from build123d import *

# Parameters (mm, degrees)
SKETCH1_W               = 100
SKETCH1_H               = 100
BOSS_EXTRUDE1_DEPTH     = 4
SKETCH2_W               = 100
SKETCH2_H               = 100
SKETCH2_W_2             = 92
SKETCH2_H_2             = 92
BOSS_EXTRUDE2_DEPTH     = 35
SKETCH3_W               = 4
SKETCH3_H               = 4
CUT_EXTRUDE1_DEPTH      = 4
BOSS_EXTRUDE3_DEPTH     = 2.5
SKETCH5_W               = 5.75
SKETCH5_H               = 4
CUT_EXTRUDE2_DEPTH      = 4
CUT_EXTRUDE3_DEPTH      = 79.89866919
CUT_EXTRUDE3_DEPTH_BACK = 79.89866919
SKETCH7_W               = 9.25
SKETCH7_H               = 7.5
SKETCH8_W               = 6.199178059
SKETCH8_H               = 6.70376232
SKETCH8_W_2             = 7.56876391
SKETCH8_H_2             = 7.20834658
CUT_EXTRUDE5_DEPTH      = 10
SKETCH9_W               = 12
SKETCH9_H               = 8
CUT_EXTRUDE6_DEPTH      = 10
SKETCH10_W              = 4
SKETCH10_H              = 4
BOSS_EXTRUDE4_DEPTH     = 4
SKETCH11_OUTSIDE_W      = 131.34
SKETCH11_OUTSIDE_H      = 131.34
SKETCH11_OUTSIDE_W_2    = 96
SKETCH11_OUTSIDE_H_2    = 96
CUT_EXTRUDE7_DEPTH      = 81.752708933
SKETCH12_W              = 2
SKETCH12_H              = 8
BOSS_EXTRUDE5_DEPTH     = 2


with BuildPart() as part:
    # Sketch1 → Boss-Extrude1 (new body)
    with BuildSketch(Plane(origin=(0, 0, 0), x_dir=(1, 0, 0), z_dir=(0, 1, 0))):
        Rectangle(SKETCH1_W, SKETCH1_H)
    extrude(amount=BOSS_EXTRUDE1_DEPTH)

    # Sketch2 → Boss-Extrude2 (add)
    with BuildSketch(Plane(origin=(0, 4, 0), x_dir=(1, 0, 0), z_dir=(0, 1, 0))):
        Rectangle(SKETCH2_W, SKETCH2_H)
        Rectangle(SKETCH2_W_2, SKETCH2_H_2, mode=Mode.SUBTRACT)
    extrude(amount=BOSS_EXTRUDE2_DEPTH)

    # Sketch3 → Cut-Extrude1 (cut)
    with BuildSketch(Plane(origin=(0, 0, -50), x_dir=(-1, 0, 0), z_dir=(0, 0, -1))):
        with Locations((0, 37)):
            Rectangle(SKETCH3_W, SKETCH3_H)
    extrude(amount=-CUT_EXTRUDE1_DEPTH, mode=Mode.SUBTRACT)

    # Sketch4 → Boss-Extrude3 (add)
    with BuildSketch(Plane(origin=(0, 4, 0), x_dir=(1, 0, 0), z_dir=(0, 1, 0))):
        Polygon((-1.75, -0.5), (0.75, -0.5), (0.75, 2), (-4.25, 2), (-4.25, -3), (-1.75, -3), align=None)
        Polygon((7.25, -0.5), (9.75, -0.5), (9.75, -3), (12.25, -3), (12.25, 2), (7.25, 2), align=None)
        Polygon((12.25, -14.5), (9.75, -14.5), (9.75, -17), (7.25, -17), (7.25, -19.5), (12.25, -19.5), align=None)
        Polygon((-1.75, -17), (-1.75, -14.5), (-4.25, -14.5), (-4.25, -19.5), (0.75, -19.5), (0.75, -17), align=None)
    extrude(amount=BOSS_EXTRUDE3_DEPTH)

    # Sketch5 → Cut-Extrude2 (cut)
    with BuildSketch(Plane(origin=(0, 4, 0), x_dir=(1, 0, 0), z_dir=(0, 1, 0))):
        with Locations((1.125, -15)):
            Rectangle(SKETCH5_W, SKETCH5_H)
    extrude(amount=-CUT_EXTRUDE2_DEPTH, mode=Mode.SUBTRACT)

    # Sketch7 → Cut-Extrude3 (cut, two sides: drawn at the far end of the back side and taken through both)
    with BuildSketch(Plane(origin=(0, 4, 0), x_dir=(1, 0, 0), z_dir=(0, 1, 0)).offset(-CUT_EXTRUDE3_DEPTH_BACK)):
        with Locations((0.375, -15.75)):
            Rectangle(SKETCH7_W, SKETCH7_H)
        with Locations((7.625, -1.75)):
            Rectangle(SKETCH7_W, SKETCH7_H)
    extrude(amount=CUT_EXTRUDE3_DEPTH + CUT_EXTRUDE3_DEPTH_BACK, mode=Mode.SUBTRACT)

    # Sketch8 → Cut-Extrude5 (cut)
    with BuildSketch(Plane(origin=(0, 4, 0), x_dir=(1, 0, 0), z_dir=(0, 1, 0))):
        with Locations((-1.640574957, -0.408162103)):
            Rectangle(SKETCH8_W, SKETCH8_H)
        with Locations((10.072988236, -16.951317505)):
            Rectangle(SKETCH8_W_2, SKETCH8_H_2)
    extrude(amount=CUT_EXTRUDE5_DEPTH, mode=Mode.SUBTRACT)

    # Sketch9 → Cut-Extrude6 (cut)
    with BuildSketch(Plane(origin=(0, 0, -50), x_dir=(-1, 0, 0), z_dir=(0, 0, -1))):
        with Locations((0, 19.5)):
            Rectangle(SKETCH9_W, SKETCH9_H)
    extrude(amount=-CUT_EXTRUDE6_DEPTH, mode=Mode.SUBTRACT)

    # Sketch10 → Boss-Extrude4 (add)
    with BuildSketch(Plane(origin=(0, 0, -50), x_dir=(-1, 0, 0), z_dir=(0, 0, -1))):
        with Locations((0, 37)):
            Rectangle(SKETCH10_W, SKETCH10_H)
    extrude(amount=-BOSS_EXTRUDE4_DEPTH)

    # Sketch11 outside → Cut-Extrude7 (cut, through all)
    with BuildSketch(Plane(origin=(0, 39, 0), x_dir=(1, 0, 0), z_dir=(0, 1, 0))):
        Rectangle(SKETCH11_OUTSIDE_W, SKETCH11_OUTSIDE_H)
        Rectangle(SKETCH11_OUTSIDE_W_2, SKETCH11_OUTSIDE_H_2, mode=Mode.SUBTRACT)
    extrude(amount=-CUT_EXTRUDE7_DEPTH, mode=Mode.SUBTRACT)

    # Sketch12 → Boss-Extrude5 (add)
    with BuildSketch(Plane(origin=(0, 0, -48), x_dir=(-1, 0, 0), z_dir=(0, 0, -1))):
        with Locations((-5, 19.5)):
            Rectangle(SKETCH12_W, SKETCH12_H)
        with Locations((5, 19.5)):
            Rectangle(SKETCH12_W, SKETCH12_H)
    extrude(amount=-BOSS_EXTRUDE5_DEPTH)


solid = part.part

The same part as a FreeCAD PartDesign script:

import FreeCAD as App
import Part
import Sketcher

V = App.Vector
Q = App.Units.Quantity


def add_polygon(sketch, points):
    """Adds a closed chain of lines whose ends are joined by coincident constraints."""
    first, n = sketch.GeometryCount, len(points)
    for a, b in zip(points, points[1:] + points[:1]):
        sketch.addGeometry(Part.LineSegment(App.Vector(*a, 0), App.Vector(*b, 0)), False)
    for i in range(n):
        sketch.addConstraint(Sketcher.Constraint("Coincident", first + i, 2, first + (i + 1) % n, 1))

doc = App.newDocument("Part")
body = doc.addObject("PartDesign::Body", "Body")

# Sketch on XZ plane
sketch1 = body.newObject("Sketcher::SketchObject", "Sketch")
sketch1.AttachmentSupport = (doc.getObject("XZ_Plane"), [""])
sketch1.MapMode = "FlatFace"
add_polygon(sketch1, [(-50, -50), (-50, 50), (50, 50), (50, -50)])  # lines 0-3
sketch1.addConstraint(Sketcher.Constraint("Vertical", 0))
sketch1.addConstraint(Sketcher.Constraint("Horizontal", 1))
sketch1.addConstraint(Sketcher.Constraint("Vertical", 2))
sketch1.addConstraint(Sketcher.Constraint("Horizontal", 3))
sketch1.addConstraint(Sketcher.Constraint("Symmetric", 0, 2, 2, 2, -1, 1))
sketch1.addConstraint(Sketcher.Constraint("Equal", 3, 0))
sketch1.addConstraint(Sketcher.Constraint("DistanceX", 1, 1, 1, 2, Q("100 mm")))
pad1 = body.newObject("PartDesign::Pad", "Pad")
pad1.Profile = sketch1
pad1.Length = 4
pad1.Reversed = True

# Sketch on XZ plane
sketch2 = body.newObject("Sketcher::SketchObject", "Sketch001")
sketch2.AttachmentSupport = (doc.getObject("XZ_Plane"), [""])
sketch2.MapMode = "FlatFace"
sketch2.AttachmentOffset = App.Placement(V(0, 0, -4), App.Rotation())
add_polygon(sketch2, [(-50, -50), (-50, 50), (50, 50), (50, -50)])  # lines 0-3
add_polygon(sketch2, [(46, 46), (-46, 46), (-46, -46), (46, -46)])  # lines 4-7
sketch2.addConstraint(Sketcher.Constraint("Vertical", 0))
sketch2.addConstraint(Sketcher.Constraint("Horizontal", 1))
sketch2.addConstraint(Sketcher.Constraint("Vertical", 2))
sketch2.addConstraint(Sketcher.Constraint("Horizontal", 3))
sketch2.addConstraint(Sketcher.Constraint("Horizontal", 4))
sketch2.addConstraint(Sketcher.Constraint("Vertical", 5))
sketch2.addConstraint(Sketcher.Constraint("Horizontal", 6))
sketch2.addConstraint(Sketcher.Constraint("Vertical", 7))
sketch2.addConstraint(Sketcher.Constraint("Symmetric", 0, 2, 2, 2, -1, 1))
sketch2.addConstraint(Sketcher.Constraint("Symmetric", 4, 2, 6, 2, -1, 1))
sketch2.addConstraint(Sketcher.Constraint("Equal", 3, 0))
sketch2.addConstraint(Sketcher.Constraint("Equal", 6, 5))
sketch2.addConstraint(Sketcher.Constraint("DistanceX", 1, 1, 1, 2, Q("100 mm")))
sketch2.addConstraint(Sketcher.Constraint("DistanceX", 4, 2, 4, 1, Q("92 mm")))
pad2 = body.newObject("PartDesign::Pad", "Pad001")
pad2.Profile = sketch2
pad2.Length = 35
pad2.Reversed = True

# Sketch on XY plane
sketch3 = body.newObject("Sketcher::SketchObject", "Sketch002")
sketch3.AttachmentSupport = (doc.getObject("XY_Plane"), [""])
sketch3.MapMode = "FlatFace"
sketch3.AttachmentOffset = App.Placement(V(0, 0, -50), App.Rotation())
add_polygon(sketch3, [(2, 39), (2, 35), (-2, 35), (-2, 39)])  # lines 0-3
sketch3.addConstraint(Sketcher.Constraint("Vertical", 0))
sketch3.addConstraint(Sketcher.Constraint("Horizontal", 1))
sketch3.addConstraint(Sketcher.Constraint("Vertical", 2))
sketch3.addConstraint(Sketcher.Constraint("Horizontal", 3))
sketch3.addConstraint(Sketcher.Constraint("Equal", 3, 0))
sketch3.addConstraint(Sketcher.Constraint("DistanceX", 1, 2, 1, 1, Q("4 mm")))
sketch3.addConstraint(Sketcher.Constraint("DistanceX", -1, 1, 0, 2, Q("2 mm")))
sketch3.addConstraint(Sketcher.Constraint("DistanceY", -1, 1, 0, 2, Q("35 mm")))
pocket1 = body.newObject("PartDesign::Pocket", "Pocket")
pocket1.Profile = sketch3
pocket1.Length = 4
pocket1.Reversed = True

# Sketch on XZ plane
sketch4 = body.newObject("Sketcher::SketchObject", "Sketch003")
sketch4.AttachmentSupport = (doc.getObject("XZ_Plane"), [""])
sketch4.MapMode = "FlatFace"
sketch4.AttachmentOffset = App.Placement(V(0, 0, -4), App.Rotation())
add_polygon(sketch4, [(-1.8, 0.5), (0.8, 0.5), (0.8, -2), (-4.2, -2), (-4.2, 3), (-1.8, 3)])  # lines 0-5
add_polygon(sketch4, [(7.2, 0.5), (9.8, 0.5), (9.8, 3), (12.2, 3), (12.2, -2), (7.2, -2)])  # lines 6-11
add_polygon(sketch4, [(12.2, 14.5), (9.8, 14.5), (9.8, 17), (7.2, 17), (7.2, 19.5), (12.2, 19.5)])  # lines 12-17
add_polygon(sketch4, [(-1.8, 17), (-1.8, 14.5), (-4.2, 14.5), (-4.2, 19.5), (0.8, 19.5), (0.8, 17)])  # lines 18-23
sketch4.addConstraint(Sketcher.Constraint("Horizontal", 0))
sketch4.addConstraint(Sketcher.Constraint("Vertical", 1))
sketch4.addConstraint(Sketcher.Constraint("Horizontal", 2))
sketch4.addConstraint(Sketcher.Constraint("Vertical", 3))
sketch4.addConstraint(Sketcher.Constraint("Horizontal", 4))
sketch4.addConstraint(Sketcher.Constraint("Vertical", 5))
sketch4.addConstraint(Sketcher.Constraint("Horizontal", 6))
sketch4.addConstraint(Sketcher.Constraint("Vertical", 7))
sketch4.addConstraint(Sketcher.Constraint("Horizontal", 8))
sketch4.addConstraint(Sketcher.Constraint("Vertical", 9))
sketch4.addConstraint(Sketcher.Constraint("Horizontal", 10))
sketch4.addConstraint(Sketcher.Constraint("Vertical", 11))
sketch4.addConstraint(Sketcher.Constraint("Horizontal", 12))
sketch4.addConstraint(Sketcher.Constraint("Vertical", 13))
sketch4.addConstraint(Sketcher.Constraint("Horizontal", 14))
sketch4.addConstraint(Sketcher.Constraint("Vertical", 15))
sketch4.addConstraint(Sketcher.Constraint("Horizontal", 16))
sketch4.addConstraint(Sketcher.Constraint("Vertical", 17))
sketch4.addConstraint(Sketcher.Constraint("Vertical", 18))
sketch4.addConstraint(Sketcher.Constraint("Horizontal", 19))
sketch4.addConstraint(Sketcher.Constraint("Vertical", 20))
sketch4.addConstraint(Sketcher.Constraint("Horizontal", 21))
sketch4.addConstraint(Sketcher.Constraint("Vertical", 22))
sketch4.addConstraint(Sketcher.Constraint("Horizontal", 23))
sketch4.addConstraint(Sketcher.Constraint("Horizontal", 5, 2, 6, 2))
sketch4.addConstraint(Sketcher.Constraint("Horizontal", 4, 2, 7, 2))
sketch4.addConstraint(Sketcher.Constraint("Horizontal", 2, 2, 9, 2))
sketch4.addConstraint(Sketcher.Constraint("Horizontal", 17, 2, 18, 2))
sketch4.addConstraint(Sketcher.Constraint("Horizontal", 16, 2, 20, 2))
sketch4.addConstraint(Sketcher.Constraint("Horizontal", 14, 2, 22, 2))
sketch4.addConstraint(Sketcher.Constraint("Vertical", 7, 2, 12, 2))
sketch4.addConstraint(Sketcher.Constraint("Vertical", 11, 2, 14, 2))
sketch4.addConstraint(Sketcher.Constraint("Vertical", 9, 2, 16, 2))
sketch4.addConstraint(Sketcher.Constraint("Vertical", 5, 2, 18, 2))
sketch4.addConstraint(Sketcher.Constraint("Vertical", 3, 2, 19, 2))
sketch4.addConstraint(Sketcher.Constraint("Vertical", 1, 2, 21, 2))
sketch4.addConstraint(Sketcher.Constraint("Equal", 0, 4))
sketch4.addConstraint(Sketcher.Constraint("Equal", 4, 6))
sketch4.addConstraint(Sketcher.Constraint("Equal", 6, 8))
sketch4.addConstraint(Sketcher.Constraint("Equal", 23, 1))
sketch4.addConstraint(Sketcher.Constraint("Equal", 21, 3))
sketch4.addConstraint(Sketcher.Constraint("Equal", 11, 13))
sketch4.addConstraint(Sketcher.Constraint("Equal", 13, 15))
sketch4.addConstraint(Sketcher.Constraint("DistanceX", 2, 2, 2, 1, Q("5 mm")))
sketch4.addConstraint(Sketcher.Constraint("DistanceY", 1, 2, -1, 1, Q("2 mm")))
sketch4.addConstraint(Sketcher.Constraint("DistanceY", -1, 1, 13, 2, Q("17 mm")))
sketch4.addConstraint(Sketcher.Constraint("DistanceX", 0, 2, 6, 2, Q("9 mm")))
sketch4.addConstraint(Sketcher.Constraint("DistanceX", -1, 1, 0, 2, Q("0.75 mm")))
pad3 = body.newObject("PartDesign::Pad", "Pad002")
pad3.Profile = sketch4
pad3.Length = 2.5
pad3.Reversed = True

# Sketch on XZ plane
sketch5 = body.newObject("Sketcher::SketchObject", "Sketch004")
sketch5.AttachmentSupport = (doc.getObject("XZ_Plane"), [""])
sketch5.MapMode = "FlatFace"
sketch5.AttachmentOffset = App.Placement(V(0, 0, -4), App.Rotation())
add_polygon(sketch5, [(-1.8, 13), (-1.8, 17), (4, 17), (4, 13)])  # lines 0-3
sketch5.addConstraint(Sketcher.Constraint("Vertical", 0))
sketch5.addConstraint(Sketcher.Constraint("Horizontal", 1))
sketch5.addConstraint(Sketcher.Constraint("Vertical", 2))
sketch5.addConstraint(Sketcher.Constraint("Horizontal", 3))
sketch5.addConstraint(Sketcher.Constraint("DistanceY", 0, 1, 0, 2, Q("4 mm")))
sketch5.addConstraint(Sketcher.Constraint("DistanceY", -1, 1, 0, 2, Q("17 mm")))
sketch5.addConstraint(Sketcher.Constraint("DistanceX", -1, 1, 1, 2, Q("4 mm")))
sketch5.addConstraint(Sketcher.Constraint("DistanceX", 1, 1, 1, 2, Q("5.75 mm")))
pocket2 = body.newObject("PartDesign::Pocket", "Pocket001")
pocket2.Profile = sketch5
pocket2.Length = 4
pocket2.Reversed = True

# Sketch on XZ plane
sketch6 = body.newObject("Sketcher::SketchObject", "Sketch005")
sketch6.AttachmentSupport = (doc.getObject("XZ_Plane"), [""])
sketch6.MapMode = "FlatFace"
sketch6.AttachmentOffset = App.Placement(V(0, 0, -4), App.Rotation())
add_polygon(sketch6, [(-4, 12), (-4, 20), (5, 20), (5, 12)])  # lines 0-3
add_polygon(sketch6, [(3, -2), (3, 6), (12, 6), (12, -2)])  # lines 4-7
sketch6.addConstraint(Sketcher.Constraint("Vertical", 0))
sketch6.addConstraint(Sketcher.Constraint("Horizontal", 1))
sketch6.addConstraint(Sketcher.Constraint("Vertical", 2))
sketch6.addConstraint(Sketcher.Constraint("Horizontal", 3))
sketch6.addConstraint(Sketcher.Constraint("Vertical", 4))
sketch6.addConstraint(Sketcher.Constraint("Horizontal", 5))
sketch6.addConstraint(Sketcher.Constraint("Vertical", 6))
sketch6.addConstraint(Sketcher.Constraint("Horizontal", 7))
sketch6.addConstraint(Sketcher.Constraint("Equal", 3, 5))
sketch6.addConstraint(Sketcher.Constraint("Equal", 2, 4))
sketch6.addConstraint(Sketcher.Constraint("DistanceY", 0, 1, 0, 2, Q("7.5 mm")))
sketch6.addConstraint(Sketcher.Constraint("DistanceX", -1, 1, 1, 2, Q("5 mm")))
sketch6.addConstraint(Sketcher.Constraint("DistanceY", -1, 1, 2, 2, Q("12 mm")))
sketch6.addConstraint(Sketcher.Constraint("DistanceX", -1, 1, 4, 2, Q("3 mm")))
sketch6.addConstraint(Sketcher.Constraint("DistanceY", 6, 2, -1, 1, Q("2 mm")))
sketch6.addConstraint(Sketcher.Constraint("DistanceX", 1, 1, 1, 2, Q("9.25 mm")))
pocket3 = body.newObject("PartDesign::Pocket", "Pocket002")
pocket3.Profile = sketch6
pocket3.Type = "ThroughAll"
pocket3.Midplane = True

# Sketch on XZ plane
sketch7 = body.newObject("Sketcher::SketchObject", "Sketch006")
sketch7.AttachmentSupport = (doc.getObject("XZ_Plane"), [""])
sketch7.MapMode = "FlatFace"
sketch7.AttachmentOffset = App.Placement(V(0, 0, -4), App.Rotation())
add_polygon(sketch7, [(-5, -3), (-5, 4), (1, 4), (1, -3)])  # lines 0-3
add_polygon(sketch7, [(6, 13), (6, 21), (14, 21), (14, 13)])  # lines 4-7
sketch7.addConstraint(Sketcher.Constraint("Vertical", 0))
sketch7.addConstraint(Sketcher.Constraint("Horizontal", 1))
sketch7.addConstraint(Sketcher.Constraint("Vertical", 2))
sketch7.addConstraint(Sketcher.Constraint("Horizontal", 3))
sketch7.addConstraint(Sketcher.Constraint("Vertical", 4))
sketch7.addConstraint(Sketcher.Constraint("Horizontal", 5))
sketch7.addConstraint(Sketcher.Constraint("Vertical", 6))
sketch7.addConstraint(Sketcher.Constraint("Horizontal", 7))
sketch7.addConstraint(Sketcher.Constraint("DistanceX", 1, 1, 1, 2, Q("6.199178 mm")))
sketch7.addConstraint(Sketcher.Constraint("DistanceY", 1, 2, 6, 2, Q("9.587101 mm")))
sketch7.addConstraint(Sketcher.Constraint("DistanceX", 5, 1, 5, 2, Q("7.568764 mm")))
sketch7.addConstraint(Sketcher.Constraint("DistanceY", 0, 1, 0, 2, Q("6.703762 mm")))
sketch7.addConstraint(Sketcher.Constraint("DistanceY", 4, 1, 4, 2, Q("7.208347 mm")))
sketch7.addConstraint(Sketcher.Constraint("DistanceY", 2, 2, -1, 1, Q("2.943719 mm")))
sketch7.addConstraint(Sketcher.Constraint("DistanceX", -1, 1, 5, 2, Q("13.85737 mm")))
sketch7.addConstraint(Sketcher.Constraint("DistanceX", 0, 2, 4, 2, Q("11.02877 mm")))
pocket4 = body.newObject("PartDesign::Pocket", "Pocket003")
pocket4.Profile = sketch7
pocket4.Length = 10

# Sketch on XY plane
sketch8 = body.newObject("Sketcher::SketchObject", "Sketch007")
sketch8.AttachmentSupport = (doc.getObject("XY_Plane"), [""])
sketch8.MapMode = "FlatFace"
sketch8.AttachmentOffset = App.Placement(V(0, 0, -50), App.Rotation())
add_polygon(sketch8, [(6, 24), (6, 16), (-6, 16), (-6, 24)])  # lines 0-3
sketch8.addConstraint(Sketcher.Constraint("Vertical", 0))
sketch8.addConstraint(Sketcher.Constraint("Horizontal", 1))
sketch8.addConstraint(Sketcher.Constraint("Vertical", 2))
sketch8.addConstraint(Sketcher.Constraint("Horizontal", 3))
sketch8.addConstraint(Sketcher.Constraint("DistanceX", 1, 2, 1, 1, Q("12 mm")))
sketch8.addConstraint(Sketcher.Constraint("DistanceY", 0, 2, 0, 1, Q("8 mm")))
sketch8.addConstraint(Sketcher.Constraint("DistanceX", -1, 1, 0, 2, Q("6 mm")))
sketch8.addConstraint(Sketcher.Constraint("DistanceY", -1, 1, 0, 2, Q("15.5 mm")))
pocket5 = body.newObject("PartDesign::Pocket", "Pocket004")
pocket5.Profile = sketch8
pocket5.Length = 10
pocket5.Reversed = True

# Sketch on XY plane
sketch9 = body.newObject("Sketcher::SketchObject", "Sketch008")
sketch9.AttachmentSupport = (doc.getObject("XY_Plane"), [""])
sketch9.MapMode = "FlatFace"
sketch9.AttachmentOffset = App.Placement(V(0, 0, -50), App.Rotation())
add_polygon(sketch9, [(2, 39), (2, 35), (-2, 35), (-2, 39)])  # lines 0-3
sketch9.addConstraint(Sketcher.Constraint("Vertical", 0))
sketch9.addConstraint(Sketcher.Constraint("Horizontal", 1))
sketch9.addConstraint(Sketcher.Constraint("Vertical", 2))
sketch9.addConstraint(Sketcher.Constraint("Horizontal", 3))
sketch9.addConstraint(Sketcher.Constraint("Equal", 3, 0))
sketch9.addConstraint(Sketcher.Constraint("DistanceX", 1, 2, 1, 1, Q("4 mm")))
sketch9.addConstraint(Sketcher.Constraint("DistanceX", -1, 1, 0, 2, Q("2 mm")))
sketch9.addConstraint(Sketcher.Constraint("DistanceY", -1, 1, 0, 2, Q("35 mm")))
pad4 = body.newObject("PartDesign::Pad", "Pad003")
pad4.Profile = sketch9
pad4.Length = 4

# Sketch on XZ plane
sketch10 = body.newObject("Sketcher::SketchObject", "Sketch009")
sketch10.AttachmentSupport = (doc.getObject("XZ_Plane"), [""])
sketch10.MapMode = "FlatFace"
sketch10.AttachmentOffset = App.Placement(V(0, 0, -39), App.Rotation())
add_polygon(sketch10, [(-66, -66), (-66, 66), (66, 66), (66, -66)])  # lines 0-3
add_polygon(sketch10, [(48, 48), (-48, 48), (-48, -48), (48, -48)])  # lines 4-7
sketch10.addConstraint(Sketcher.Constraint("Vertical", 0))
sketch10.addConstraint(Sketcher.Constraint("Horizontal", 1))
sketch10.addConstraint(Sketcher.Constraint("Vertical", 2))
sketch10.addConstraint(Sketcher.Constraint("Horizontal", 3))
sketch10.addConstraint(Sketcher.Constraint("Horizontal", 4))
sketch10.addConstraint(Sketcher.Constraint("Vertical", 5))
sketch10.addConstraint(Sketcher.Constraint("Horizontal", 6))
sketch10.addConstraint(Sketcher.Constraint("Vertical", 7))
sketch10.addConstraint(Sketcher.Constraint("Symmetric", 0, 2, 2, 2, -1, 1))
sketch10.addConstraint(Sketcher.Constraint("Symmetric", 4, 2, 6, 2, -1, 1))
sketch10.addConstraint(Sketcher.Constraint("Equal", 3, 0))
sketch10.addConstraint(Sketcher.Constraint("Equal", 6, 5))
sketch10.addConstraint(Sketcher.Constraint("DistanceX", 4, 2, 4, 1, Q("96 mm")))
sketch10.addConstraint(Sketcher.Constraint("DistanceX", 1, 1, 1, 2, Q("131.34 mm")))
pocket6 = body.newObject("PartDesign::Pocket", "Pocket005")
pocket6.Profile = sketch10
pocket6.Type = "ThroughAll"
pocket6.Reversed = True

# Sketch on XY plane
sketch11 = body.newObject("Sketcher::SketchObject", "Sketch010")
sketch11.AttachmentSupport = (doc.getObject("XY_Plane"), [""])
sketch11.MapMode = "FlatFace"
sketch11.AttachmentOffset = App.Placement(V(0, 0, -48), App.Rotation())
add_polygon(sketch11, [(6, 23.5), (6, 15.5), (4, 15.5), (4, 23.5)])  # lines 0-3
add_polygon(sketch11, [(-4, 23.5), (-4, 15.5), (-6, 15.5), (-6, 23.5)])  # lines 4-7
sketch11.addConstraint(Sketcher.Constraint("Vertical", 0))
sketch11.addConstraint(Sketcher.Constraint("Horizontal", 1))
sketch11.addConstraint(Sketcher.Constraint("Vertical", 2))
sketch11.addConstraint(Sketcher.Constraint("Horizontal", 3))
sketch11.addConstraint(Sketcher.Constraint("Vertical", 4))
sketch11.addConstraint(Sketcher.Constraint("Horizontal", 5))
sketch11.addConstraint(Sketcher.Constraint("Vertical", 6))
sketch11.addConstraint(Sketcher.Constraint("Horizontal", 7))
sketch11.addConstraint(Sketcher.Constraint("Symmetric", 1, 2, 4, 2, -2))
sketch11.addConstraint(Sketcher.Constraint("Symmetric", 3, 2, 6, 2, -2))
sketch11.addConstraint(Sketcher.Constraint("DistanceX", 1, 2, 1, 1, Q("2 mm")))
sketch11.addConstraint(Sketcher.Constraint("DistanceY", 0, 2, 0, 1, Q("8 mm")))
sketch11.addConstraint(Sketcher.Constraint("DistanceX", -1, 1, 0, 2, Q("6 mm")))
sketch11.addConstraint(Sketcher.Constraint("DistanceY", -1, 1, 0, 2, Q("15.5 mm")))
pad5 = body.newObject("PartDesign::Pad", "Pad004")
pad5.Profile = sketch11
pad5.Length = 2

doc.recompute()
